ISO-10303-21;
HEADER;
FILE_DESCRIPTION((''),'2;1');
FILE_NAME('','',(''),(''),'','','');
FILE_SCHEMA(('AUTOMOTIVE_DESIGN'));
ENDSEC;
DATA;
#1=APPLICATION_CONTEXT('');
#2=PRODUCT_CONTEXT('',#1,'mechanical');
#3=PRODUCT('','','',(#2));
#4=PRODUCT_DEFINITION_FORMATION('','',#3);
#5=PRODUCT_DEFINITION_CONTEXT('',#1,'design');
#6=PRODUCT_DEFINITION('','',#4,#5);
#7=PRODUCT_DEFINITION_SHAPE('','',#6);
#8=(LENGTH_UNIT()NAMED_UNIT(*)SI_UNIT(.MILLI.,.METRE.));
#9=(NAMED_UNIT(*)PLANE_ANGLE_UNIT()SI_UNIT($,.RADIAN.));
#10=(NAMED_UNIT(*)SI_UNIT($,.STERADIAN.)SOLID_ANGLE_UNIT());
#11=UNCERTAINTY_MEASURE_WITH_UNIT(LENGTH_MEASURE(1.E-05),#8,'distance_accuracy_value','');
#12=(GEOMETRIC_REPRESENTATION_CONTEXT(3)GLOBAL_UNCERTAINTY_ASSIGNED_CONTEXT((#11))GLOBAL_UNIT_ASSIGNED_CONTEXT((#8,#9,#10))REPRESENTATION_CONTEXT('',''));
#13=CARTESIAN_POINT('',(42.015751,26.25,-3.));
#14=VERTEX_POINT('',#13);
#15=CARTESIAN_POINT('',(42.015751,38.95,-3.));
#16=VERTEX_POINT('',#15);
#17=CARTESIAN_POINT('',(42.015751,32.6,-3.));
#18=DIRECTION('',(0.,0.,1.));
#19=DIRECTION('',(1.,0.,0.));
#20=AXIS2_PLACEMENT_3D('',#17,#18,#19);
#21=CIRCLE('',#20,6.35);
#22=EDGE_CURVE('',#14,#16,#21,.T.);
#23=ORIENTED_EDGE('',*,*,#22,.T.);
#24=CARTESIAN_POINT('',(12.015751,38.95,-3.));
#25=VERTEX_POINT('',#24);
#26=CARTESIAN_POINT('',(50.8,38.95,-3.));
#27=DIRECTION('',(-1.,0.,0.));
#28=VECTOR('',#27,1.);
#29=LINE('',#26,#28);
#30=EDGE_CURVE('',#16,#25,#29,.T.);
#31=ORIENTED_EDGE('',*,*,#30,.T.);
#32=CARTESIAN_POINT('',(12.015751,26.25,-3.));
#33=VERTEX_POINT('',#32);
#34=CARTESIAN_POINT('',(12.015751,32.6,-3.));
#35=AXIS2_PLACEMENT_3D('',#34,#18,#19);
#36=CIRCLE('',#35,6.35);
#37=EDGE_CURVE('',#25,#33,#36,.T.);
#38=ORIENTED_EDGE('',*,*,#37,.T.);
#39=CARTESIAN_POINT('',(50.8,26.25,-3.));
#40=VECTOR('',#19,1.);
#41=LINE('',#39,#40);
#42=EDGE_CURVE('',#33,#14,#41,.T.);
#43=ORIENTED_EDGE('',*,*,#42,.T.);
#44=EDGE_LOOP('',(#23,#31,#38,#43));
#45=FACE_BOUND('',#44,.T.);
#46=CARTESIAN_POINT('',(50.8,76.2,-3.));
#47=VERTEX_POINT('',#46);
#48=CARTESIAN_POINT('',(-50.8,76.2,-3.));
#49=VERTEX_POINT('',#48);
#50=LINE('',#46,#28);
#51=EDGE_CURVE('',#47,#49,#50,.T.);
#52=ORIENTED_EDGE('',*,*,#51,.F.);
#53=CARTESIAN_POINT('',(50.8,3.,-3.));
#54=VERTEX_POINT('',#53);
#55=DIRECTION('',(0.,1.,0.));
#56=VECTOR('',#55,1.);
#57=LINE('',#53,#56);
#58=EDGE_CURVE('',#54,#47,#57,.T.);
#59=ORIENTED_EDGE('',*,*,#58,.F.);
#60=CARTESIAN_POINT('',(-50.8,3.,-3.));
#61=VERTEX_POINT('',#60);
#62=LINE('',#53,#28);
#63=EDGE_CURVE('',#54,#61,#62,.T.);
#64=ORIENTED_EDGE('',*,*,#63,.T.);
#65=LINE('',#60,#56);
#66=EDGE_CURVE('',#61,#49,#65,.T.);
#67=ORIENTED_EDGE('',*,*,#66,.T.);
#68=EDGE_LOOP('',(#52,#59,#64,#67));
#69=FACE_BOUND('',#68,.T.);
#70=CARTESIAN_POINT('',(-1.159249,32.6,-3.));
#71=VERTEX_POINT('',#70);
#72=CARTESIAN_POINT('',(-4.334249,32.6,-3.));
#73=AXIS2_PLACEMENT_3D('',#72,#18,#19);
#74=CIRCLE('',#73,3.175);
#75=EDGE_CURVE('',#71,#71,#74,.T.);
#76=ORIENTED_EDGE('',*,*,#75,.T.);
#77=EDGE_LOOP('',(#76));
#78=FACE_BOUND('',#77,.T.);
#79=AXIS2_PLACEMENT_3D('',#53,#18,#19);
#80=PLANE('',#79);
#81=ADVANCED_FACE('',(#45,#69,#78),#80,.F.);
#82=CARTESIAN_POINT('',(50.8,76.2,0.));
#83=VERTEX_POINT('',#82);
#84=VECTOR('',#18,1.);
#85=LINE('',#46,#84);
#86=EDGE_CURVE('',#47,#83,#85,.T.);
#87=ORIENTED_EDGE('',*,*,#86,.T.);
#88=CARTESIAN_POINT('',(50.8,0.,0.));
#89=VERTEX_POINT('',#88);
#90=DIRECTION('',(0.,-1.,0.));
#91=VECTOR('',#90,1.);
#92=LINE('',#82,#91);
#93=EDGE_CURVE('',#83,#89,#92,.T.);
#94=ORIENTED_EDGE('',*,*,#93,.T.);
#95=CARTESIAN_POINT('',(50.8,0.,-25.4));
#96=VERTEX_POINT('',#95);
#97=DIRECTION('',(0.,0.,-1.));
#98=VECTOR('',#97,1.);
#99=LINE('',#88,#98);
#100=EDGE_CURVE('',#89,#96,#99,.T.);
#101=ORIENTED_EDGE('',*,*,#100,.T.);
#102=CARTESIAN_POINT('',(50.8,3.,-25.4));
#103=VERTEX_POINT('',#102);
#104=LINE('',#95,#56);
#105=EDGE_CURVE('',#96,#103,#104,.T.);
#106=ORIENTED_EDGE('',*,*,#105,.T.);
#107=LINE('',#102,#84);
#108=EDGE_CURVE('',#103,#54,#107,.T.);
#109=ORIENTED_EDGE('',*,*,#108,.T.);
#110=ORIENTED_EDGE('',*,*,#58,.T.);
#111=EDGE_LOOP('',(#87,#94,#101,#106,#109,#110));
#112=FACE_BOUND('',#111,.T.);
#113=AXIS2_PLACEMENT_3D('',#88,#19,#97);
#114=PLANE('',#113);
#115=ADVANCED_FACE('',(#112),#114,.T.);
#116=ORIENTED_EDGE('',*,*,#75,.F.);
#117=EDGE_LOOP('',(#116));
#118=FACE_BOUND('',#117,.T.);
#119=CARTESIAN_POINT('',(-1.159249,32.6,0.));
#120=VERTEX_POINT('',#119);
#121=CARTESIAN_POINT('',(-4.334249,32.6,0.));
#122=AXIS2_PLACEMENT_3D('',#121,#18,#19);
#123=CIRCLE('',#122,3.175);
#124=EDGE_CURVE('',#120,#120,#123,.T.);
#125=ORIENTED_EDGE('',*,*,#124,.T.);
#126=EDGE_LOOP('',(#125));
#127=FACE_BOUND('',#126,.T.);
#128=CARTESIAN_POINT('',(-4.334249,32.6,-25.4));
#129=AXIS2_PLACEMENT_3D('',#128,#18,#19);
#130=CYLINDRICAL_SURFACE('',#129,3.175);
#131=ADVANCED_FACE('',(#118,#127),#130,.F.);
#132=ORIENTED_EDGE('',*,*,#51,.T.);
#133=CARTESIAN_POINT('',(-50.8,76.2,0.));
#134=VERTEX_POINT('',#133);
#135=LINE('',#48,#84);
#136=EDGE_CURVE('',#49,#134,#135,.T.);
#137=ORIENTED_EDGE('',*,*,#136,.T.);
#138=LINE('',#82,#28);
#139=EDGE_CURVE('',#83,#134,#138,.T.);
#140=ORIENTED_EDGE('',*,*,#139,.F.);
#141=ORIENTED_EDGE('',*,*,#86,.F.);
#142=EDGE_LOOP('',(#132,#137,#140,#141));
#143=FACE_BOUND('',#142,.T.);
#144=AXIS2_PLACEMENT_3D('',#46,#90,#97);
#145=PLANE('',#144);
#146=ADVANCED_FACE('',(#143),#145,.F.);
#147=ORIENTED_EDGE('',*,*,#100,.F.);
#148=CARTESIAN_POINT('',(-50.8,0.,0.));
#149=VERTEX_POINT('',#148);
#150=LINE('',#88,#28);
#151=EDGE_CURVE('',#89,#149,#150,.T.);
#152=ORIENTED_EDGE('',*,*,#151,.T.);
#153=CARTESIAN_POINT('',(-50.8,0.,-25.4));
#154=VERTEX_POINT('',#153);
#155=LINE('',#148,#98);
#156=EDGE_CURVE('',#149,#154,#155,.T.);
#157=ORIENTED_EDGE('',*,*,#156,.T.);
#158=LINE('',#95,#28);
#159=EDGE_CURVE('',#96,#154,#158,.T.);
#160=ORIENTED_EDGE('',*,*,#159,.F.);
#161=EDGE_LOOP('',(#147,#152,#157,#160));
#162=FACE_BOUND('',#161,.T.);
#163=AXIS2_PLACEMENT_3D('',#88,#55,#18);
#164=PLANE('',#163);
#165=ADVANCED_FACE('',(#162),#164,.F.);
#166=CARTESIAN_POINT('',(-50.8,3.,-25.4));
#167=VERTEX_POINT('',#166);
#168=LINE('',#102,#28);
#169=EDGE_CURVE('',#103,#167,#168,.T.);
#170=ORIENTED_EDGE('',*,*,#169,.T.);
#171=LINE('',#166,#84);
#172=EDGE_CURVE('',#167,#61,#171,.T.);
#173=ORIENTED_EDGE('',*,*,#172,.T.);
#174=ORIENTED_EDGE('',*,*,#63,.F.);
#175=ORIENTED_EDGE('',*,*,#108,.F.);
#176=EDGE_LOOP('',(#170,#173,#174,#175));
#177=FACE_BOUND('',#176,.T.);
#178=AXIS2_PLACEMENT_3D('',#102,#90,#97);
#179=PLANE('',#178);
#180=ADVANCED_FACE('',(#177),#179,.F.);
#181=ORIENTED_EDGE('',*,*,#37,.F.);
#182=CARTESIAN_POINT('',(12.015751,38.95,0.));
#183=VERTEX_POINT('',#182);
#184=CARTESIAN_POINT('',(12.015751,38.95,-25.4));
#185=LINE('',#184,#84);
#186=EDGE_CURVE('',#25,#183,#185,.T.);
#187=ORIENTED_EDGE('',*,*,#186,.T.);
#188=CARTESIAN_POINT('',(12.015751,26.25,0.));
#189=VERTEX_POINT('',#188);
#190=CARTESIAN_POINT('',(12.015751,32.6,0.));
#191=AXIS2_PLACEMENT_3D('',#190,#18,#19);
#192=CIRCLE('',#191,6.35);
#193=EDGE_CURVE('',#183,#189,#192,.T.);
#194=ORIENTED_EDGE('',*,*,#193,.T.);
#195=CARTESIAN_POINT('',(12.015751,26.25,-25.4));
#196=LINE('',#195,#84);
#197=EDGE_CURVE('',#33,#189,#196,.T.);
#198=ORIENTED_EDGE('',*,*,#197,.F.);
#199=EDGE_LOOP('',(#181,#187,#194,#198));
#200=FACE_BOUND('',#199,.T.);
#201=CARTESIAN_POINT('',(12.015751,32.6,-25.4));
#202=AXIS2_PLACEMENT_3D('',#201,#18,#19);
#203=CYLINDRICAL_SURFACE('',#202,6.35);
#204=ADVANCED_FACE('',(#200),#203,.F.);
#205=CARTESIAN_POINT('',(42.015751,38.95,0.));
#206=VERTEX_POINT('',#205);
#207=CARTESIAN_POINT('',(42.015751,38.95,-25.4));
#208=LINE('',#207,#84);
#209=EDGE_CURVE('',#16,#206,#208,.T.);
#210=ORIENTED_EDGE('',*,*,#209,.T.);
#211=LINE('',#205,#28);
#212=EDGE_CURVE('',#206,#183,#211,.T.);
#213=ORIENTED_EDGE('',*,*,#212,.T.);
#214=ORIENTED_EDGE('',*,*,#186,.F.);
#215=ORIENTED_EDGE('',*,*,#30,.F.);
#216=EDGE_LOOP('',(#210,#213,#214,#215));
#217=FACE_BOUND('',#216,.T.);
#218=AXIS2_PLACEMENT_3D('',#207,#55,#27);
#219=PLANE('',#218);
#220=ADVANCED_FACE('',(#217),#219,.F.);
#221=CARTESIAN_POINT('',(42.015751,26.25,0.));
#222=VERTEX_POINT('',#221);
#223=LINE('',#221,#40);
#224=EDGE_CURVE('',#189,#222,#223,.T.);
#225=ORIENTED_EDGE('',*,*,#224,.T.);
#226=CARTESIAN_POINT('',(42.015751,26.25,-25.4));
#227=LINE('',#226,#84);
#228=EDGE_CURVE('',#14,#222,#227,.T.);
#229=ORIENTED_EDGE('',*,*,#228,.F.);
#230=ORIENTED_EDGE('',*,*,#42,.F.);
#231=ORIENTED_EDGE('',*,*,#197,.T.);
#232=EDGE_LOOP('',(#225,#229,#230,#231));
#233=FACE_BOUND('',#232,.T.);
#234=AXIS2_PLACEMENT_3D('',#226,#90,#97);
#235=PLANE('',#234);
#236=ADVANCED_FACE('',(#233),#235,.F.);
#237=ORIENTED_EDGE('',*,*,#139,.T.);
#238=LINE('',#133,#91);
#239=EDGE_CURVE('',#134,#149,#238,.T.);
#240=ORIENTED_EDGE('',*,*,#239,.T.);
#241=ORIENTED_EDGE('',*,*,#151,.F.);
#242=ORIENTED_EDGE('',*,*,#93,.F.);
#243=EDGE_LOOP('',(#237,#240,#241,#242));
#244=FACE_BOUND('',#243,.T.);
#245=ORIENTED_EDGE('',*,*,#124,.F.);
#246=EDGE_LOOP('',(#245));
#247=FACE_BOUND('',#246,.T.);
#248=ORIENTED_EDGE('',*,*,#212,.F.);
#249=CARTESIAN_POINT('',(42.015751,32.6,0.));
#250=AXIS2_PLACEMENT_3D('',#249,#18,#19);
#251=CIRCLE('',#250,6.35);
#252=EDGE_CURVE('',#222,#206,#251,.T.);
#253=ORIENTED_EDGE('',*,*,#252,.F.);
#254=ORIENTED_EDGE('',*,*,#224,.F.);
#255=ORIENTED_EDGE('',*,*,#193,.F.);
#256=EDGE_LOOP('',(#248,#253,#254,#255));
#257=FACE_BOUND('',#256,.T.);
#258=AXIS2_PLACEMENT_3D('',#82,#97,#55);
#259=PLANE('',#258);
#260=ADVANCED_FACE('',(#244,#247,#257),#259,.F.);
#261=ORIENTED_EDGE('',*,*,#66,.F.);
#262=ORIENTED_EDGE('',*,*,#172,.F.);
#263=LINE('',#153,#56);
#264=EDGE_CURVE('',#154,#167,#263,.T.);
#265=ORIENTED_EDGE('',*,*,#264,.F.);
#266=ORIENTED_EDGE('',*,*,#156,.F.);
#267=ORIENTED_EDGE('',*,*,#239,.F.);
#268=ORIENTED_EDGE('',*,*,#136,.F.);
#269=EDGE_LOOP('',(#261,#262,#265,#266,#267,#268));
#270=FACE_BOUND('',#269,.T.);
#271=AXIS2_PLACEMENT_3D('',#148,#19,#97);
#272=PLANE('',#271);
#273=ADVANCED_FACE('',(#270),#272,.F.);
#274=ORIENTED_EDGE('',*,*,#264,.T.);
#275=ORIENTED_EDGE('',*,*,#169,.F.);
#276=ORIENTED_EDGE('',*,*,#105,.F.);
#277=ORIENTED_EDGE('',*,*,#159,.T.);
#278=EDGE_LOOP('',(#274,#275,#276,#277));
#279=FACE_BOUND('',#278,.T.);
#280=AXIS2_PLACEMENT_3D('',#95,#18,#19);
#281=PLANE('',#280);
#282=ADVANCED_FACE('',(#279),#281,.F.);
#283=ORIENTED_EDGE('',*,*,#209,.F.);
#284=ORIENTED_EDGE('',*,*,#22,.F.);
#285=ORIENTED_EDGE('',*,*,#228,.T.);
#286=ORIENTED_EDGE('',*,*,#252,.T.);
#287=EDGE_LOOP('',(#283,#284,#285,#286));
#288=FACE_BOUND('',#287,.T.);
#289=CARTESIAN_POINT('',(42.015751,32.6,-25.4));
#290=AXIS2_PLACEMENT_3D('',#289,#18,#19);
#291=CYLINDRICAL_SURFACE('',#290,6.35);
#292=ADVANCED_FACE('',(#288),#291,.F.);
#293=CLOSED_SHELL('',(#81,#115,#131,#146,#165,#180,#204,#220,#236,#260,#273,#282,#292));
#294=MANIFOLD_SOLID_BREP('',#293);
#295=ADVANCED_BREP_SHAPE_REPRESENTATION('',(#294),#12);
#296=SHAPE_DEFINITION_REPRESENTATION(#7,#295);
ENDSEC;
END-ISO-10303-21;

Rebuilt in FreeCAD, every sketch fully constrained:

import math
import FreeCAD as App
import Part
import Sketcher
from FreeCAD import Vector
Q = App.Units.Quantity


def add_polygon(sketch, points):
    """Adds a closed chain of lines whose ends are joined by coincident constraints."""
    first, n = sketch.GeometryCount, len(points)
    for a, b in zip(points, points[1:] + points[:1]):
        sketch.addGeometry(Part.LineSegment(App.Vector(*a, 0), App.Vector(*b, 0)), False)
    for i in range(n):
        sketch.addConstraint(Sketcher.Constraint("Coincident", first + i, 2, first + (i + 1) % n, 1))

doc = App.newDocument("Part")
body = doc.addObject("PartDesign::Body", "Body")

# Sketch on YZ plane
sketch1 = body.newObject("Sketcher::SketchObject", "Sketch")
sketch1.AttachmentSupport = (doc.getObject("YZ_Plane"), [""])
sketch1.MapMode = "FlatFace"
add_polygon(sketch1, [(76.2, 0), (0, 0), (0, -25.4), (3, -25.4), (3, -3), (76.2, -3)])  # lines 0-5
sketch1.addConstraint(Sketcher.Constraint("Horizontal", 0))
sketch1.addConstraint(Sketcher.Constraint("Vertical", 1))
sketch1.addConstraint(Sketcher.Constraint("Horizontal", 2))
sketch1.addConstraint(Sketcher.Constraint("Vertical", 3))
sketch1.addConstraint(Sketcher.Constraint("Horizontal", 4))
sketch1.addConstraint(Sketcher.Constraint("Vertical", 5))
sketch1.addConstraint(Sketcher.Constraint("Coincident", 0, 2, -1, 1))
sketch1.addConstraint(Sketcher.Constraint("Equal", 2, 5))
sketch1.addConstraint(Sketcher.Constraint("DistanceX", 0, 2, 0, 1, Q("3 in")))
sketch1.addConstraint(Sketcher.Constraint("DistanceY", 1, 2, 1, 1, Q("1 in")))
sketch1.addConstraint(Sketcher.Constraint("DistanceX", 2, 1, 2, 2, Q("3 mm")))
pad1 = body.newObject("PartDesign::Pad", "Pad")
pad1.Profile = sketch1
pad1.Length = Q("4 in")
pad1.Midplane = True

# Sketch on XY plane
sketch2 = body.newObject("Sketcher::SketchObject", "Sketch001")
sketch2.AttachmentSupport = (doc.getObject("XY_Plane"), [""])
sketch2.MapMode = "FlatFace"
sketch2.addGeometry(Part.Circle(Vector(-4.3, 32.6, 0), Vector(0, 0, 1), 3.2), False)
sketch2.addGeometry(Part.LineSegment(Vector(12, 26.2, 0), Vector(42, 26.2, 0)), False)
sketch2.addGeometry(Part.ArcOfCircle(Part.Circle(Vector(42, 32.6, 0), Vector(0, 0, 1), 6.3), math.radians(-90), math.radians(90)), False)
sketch2.addGeometry(Part.LineSegment(Vector(42, 39, 0), Vector(12, 39, 0)), False)
sketch2.addGeometry(Part.ArcOfCircle(Part.Circle(Vector(12, 32.6, 0), Vector(0, 0, 1), 6.3), math.radians(90), math.radians(270)), False)
sketch2.addConstraint(Sketcher.Constraint("Tangent", 1, 2, 2, 1))
sketch2.addConstraint(Sketcher.Constraint("Tangent", 2, 2, 3, 1))
sketch2.addConstraint(Sketcher.Constraint("Tangent", 3, 2, 4, 1))
sketch2.addConstraint(Sketcher.Constraint("Tangent", 4, 2, 1, 1))
sketch2.addConstraint(Sketcher.Constraint("Horizontal", 1))
sketch2.addConstraint(Sketcher.Constraint("Horizontal", 3))
sketch2.addConstraint(Sketcher.Constraint("Horizontal", 0, 3, 2, 3))
sketch2.addConstraint(Sketcher.Constraint("Diameter", 0, Q("0.25 in")))
sketch2.addConstraint(Sketcher.Constraint("Radius", 2, Q("0.25 in")))
sketch2.addConstraint(Sketcher.Constraint("DistanceX", 1, 1, 1, 2, Q("30 mm")))
sketch2.addConstraint(Sketcher.Constraint("DistanceY", -1, 1, 0, 3, Q("32.6 mm")))
sketch2.addConstraint(Sketcher.Constraint("DistanceX", 0, 3, 2, 3, Q("46.35 mm")))
sketch2.addConstraint(Sketcher.Constraint("DistanceX", 0, 3, -1, 1, Q("4.334249 mm")))
pocket1 = body.newObject("PartDesign::Pocket", "Pocket")
pocket1.Profile = sketch2
pocket1.Type = "ThroughAll"

doc.recompute()
